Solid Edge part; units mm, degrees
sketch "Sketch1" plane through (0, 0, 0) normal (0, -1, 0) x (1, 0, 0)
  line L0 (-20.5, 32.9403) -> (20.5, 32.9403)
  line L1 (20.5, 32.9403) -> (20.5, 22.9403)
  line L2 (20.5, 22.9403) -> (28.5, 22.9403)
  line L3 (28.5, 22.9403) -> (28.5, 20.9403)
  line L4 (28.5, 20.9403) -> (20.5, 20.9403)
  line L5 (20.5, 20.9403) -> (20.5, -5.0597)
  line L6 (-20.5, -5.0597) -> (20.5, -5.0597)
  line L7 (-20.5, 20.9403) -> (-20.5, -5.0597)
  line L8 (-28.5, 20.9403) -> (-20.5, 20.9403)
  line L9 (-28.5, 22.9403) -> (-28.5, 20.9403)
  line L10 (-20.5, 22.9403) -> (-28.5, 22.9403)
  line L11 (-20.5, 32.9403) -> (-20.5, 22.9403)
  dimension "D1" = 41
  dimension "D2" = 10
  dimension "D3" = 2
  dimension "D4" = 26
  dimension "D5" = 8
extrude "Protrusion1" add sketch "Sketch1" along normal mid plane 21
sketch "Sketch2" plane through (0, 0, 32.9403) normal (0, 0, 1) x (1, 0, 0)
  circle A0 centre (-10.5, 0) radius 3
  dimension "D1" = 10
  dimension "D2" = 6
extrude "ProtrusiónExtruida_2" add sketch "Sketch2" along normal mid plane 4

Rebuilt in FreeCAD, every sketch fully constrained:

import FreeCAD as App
import Part
import Sketcher
Q = App.Units.Quantity

doc = App.newDocument("Part")
body = doc.addObject("PartDesign::Body", "Body")

# Sketch on XZ plane
sketch1 = body.newObject("Sketcher::SketchObject", "Sketch")
sketch1.AttachmentSupport = (doc.getObject("XZ_Plane"), [""])
sketch1.MapMode = "FlatFace"
sketch1.addGeometry([
    Part.LineSegment(App.Vector(20.5, 32.9, 0), App.Vector(-20.5, 32.9, 0)),  # 0
    Part.LineSegment(App.Vector(-20.5, 32.9, 0), App.Vector(-20.5, 22.9, 0)),  # 1
    Part.LineSegment(App.Vector(-20.5, 22.9, 0), App.Vector(-28.5, 22.9, 0)),  # 2
    Part.LineSegment(App.Vector(-28.5, 22.9, 0), App.Vector(-28.5, 20.9, 0)),  # 3
    Part.LineSegment(App.Vector(-28.5, 20.9, 0), App.Vector(-20.5, 20.9, 0)),  # 4
    Part.LineSegment(App.Vector(-20.5, 20.9, 0), App.Vector(-20.5, -5.1, 0)),  # 5
    Part.LineSegment(App.Vector(-20.5, -5.1, 0), App.Vector(20.5, -5.1, 0)),  # 6
    Part.LineSegment(App.Vector(20.5, -5.1, 0), App.Vector(20.5, 20.9, 0)),  # 7
    Part.LineSegment(App.Vector(20.5, 20.9, 0), App.Vector(28.5, 20.9, 0)),  # 8
    Part.LineSegment(App.Vector(28.5, 20.9, 0), App.Vector(28.5, 22.9, 0)),  # 9
    Part.LineSegment(App.Vector(28.5, 22.9, 0), App.Vector(20.5, 22.9, 0)),  # 10
    Part.LineSegment(App.Vector(20.5, 22.9, 0), App.Vector(20.5, 32.9, 0)),  # 11
], False)
sketch1.addConstraint([
    Sketcher.Constraint("Coincident", 0, 2, 1, 1),
    Sketcher.Constraint("Coincident", 1, 2, 2, 1),
    Sketcher.Constraint("Coincident", 2, 2, 3, 1),
    Sketcher.Constraint("Coincident", 3, 2, 4, 1),
    Sketcher.Constraint("Coincident", 4, 2, 5, 1),
    Sketcher.Constraint("Coincident", 5, 2, 6, 1),
    Sketcher.Constraint("Coincident", 6, 2, 7, 1),
    Sketcher.Constraint("Coincident", 7, 2, 8, 1),
    Sketcher.Constraint("Coincident", 8, 2, 9, 1),
    Sketcher.Constraint("Coincident", 9, 2, 10, 1),
    Sketcher.Constraint("Coincident", 10, 2, 11, 1),
    Sketcher.Constraint("Coincident", 11, 2, 0, 1),
    Sketcher.Constraint("Horizontal", 0),
    Sketcher.Constraint("Vertical", 1),
    Sketcher.Constraint("Horizontal", 2),
    Sketcher.Constraint("Vertical", 3),
    Sketcher.Constraint("Horizontal", 4),
    Sketcher.Constraint("Vertical", 5),
    Sketcher.Constraint("Horizontal", 6),
    Sketcher.Constraint("Vertical", 7),
    Sketcher.Constraint("Horizontal", 8),
    Sketcher.Constraint("Vertical", 9),
    Sketcher.Constraint("Horizontal", 10),
    Sketcher.Constraint("Vertical", 11),
    Sketcher.Constraint("Symmetric", 4, 2, 7, 2, -2),
    Sketcher.Constraint("Symmetric", 2, 2, 9, 2, -2),
    Sketcher.Constraint("Vertical", 1, 2, 4, 2),
    Sketcher.Constraint("Vertical", 7, 2, 10, 2),
    Sketcher.Constraint("DistanceX", 0, 2, -1, 1, Q("20.5 mm")),
    Sketcher.Constraint("DistanceX", 2, 2, -1, 1, Q("28.5 mm")),
    Sketcher.Constraint("DistanceY", 1, 2, 1, 1, Q("10 mm")),
    Sketcher.Constraint("DistanceY", 3, 2, 3, 1, Q("2 mm")),
    Sketcher.Constraint("DistanceY", 5, 2, 5, 1, Q("26 mm")),
    Sketcher.Constraint("DistanceY", -1, 1, 0, 2, Q("32.9403 mm")),
])
pad1 = body.newObject("PartDesign::Pad", "Pad")
pad1.Profile = sketch1
pad1.Length = 21
pad1.Midplane = True

# Sketch on XY plane
sketch2 = body.newObject("Sketcher::SketchObject", "Sketch001")
sketch2.AttachmentSupport = (doc.getObject("XY_Plane"), [""])
sketch2.MapMode = "FlatFace"
sketch2.AttachmentOffset = App.Placement(App.Vector(0, 0, 32.9403), App.Rotation())
sketch2.addGeometry(Part.Circle(App.Vector(-10.5, 0, 0), App.Vector(0, 0, 1), 3), False)
sketch2.addConstraint([
    Sketcher.Constraint("PointOnObject", 0, 3, -1),
    Sketcher.Constraint("Diameter", 0, Q("6 mm")),
    Sketcher.Constraint("DistanceX", 0, 3, -1, 1, Q("10.5 mm")),
])
pad2 = body.newObject("PartDesign::Pad", "Pad001")
pad2.Profile = sketch2
pad2.Length = 4
pad2.Midplane = True

doc.recompute()
